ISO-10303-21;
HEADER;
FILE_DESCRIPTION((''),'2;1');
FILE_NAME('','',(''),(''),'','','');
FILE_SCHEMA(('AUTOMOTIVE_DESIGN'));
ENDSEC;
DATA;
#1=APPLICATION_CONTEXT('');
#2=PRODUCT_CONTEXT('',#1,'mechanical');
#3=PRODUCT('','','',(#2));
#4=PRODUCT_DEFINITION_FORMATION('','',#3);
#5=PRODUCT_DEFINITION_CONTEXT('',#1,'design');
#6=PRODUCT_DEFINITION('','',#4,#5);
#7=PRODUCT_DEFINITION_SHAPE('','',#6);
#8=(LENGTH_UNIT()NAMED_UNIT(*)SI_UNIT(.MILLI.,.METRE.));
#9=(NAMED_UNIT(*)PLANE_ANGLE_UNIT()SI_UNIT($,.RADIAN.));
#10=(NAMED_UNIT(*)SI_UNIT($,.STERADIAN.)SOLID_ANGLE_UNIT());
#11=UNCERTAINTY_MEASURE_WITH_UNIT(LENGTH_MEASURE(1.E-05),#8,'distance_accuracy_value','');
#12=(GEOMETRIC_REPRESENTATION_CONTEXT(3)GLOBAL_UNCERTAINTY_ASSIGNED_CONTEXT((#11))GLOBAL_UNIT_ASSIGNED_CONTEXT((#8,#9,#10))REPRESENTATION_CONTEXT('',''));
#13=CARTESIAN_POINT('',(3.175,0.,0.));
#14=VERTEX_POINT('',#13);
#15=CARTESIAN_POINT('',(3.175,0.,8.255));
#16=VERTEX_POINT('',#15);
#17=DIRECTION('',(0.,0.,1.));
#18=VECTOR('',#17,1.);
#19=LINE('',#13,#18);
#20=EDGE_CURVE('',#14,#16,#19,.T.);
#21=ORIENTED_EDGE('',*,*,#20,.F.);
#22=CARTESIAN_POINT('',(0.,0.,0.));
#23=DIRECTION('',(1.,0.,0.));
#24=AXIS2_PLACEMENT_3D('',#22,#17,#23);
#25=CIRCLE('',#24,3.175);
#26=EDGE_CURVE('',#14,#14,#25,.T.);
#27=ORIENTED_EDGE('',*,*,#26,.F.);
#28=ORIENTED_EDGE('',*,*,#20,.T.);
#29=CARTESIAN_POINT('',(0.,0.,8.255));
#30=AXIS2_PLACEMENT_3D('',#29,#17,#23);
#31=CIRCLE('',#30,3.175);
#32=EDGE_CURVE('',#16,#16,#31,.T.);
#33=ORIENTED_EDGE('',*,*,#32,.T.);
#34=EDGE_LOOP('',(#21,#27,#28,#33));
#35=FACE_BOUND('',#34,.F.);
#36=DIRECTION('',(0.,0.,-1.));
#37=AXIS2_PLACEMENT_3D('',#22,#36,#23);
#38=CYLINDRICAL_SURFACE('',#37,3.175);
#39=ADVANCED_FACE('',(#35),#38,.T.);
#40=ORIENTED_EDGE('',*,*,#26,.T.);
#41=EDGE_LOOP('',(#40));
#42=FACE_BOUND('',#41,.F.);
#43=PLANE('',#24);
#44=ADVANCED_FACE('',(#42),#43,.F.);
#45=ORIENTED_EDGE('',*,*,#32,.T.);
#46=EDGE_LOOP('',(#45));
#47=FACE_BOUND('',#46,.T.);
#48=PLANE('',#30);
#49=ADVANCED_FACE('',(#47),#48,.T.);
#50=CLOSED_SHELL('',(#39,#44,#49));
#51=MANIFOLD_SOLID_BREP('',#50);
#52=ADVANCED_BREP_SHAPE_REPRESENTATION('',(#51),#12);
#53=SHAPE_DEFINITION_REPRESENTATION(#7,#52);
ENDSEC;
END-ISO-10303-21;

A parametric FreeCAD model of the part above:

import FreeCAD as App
import Part
import Sketcher
Q = App.Units.Quantity

doc = App.newDocument("Part")
body = doc.addObject("PartDesign::Body", "Body")

sketch1 = doc.addObject("Sketcher::SketchObject", "Sketch")
body.addObject(sketch1)
sketch1.AttachmentSupport = (doc.XY_Plane, [""])
sketch1.MapMode = "FlatFace"
sketch1.addGeometry(Part.Circle(App.Vector(0, 0, 0), App.Vector(0, 0, 1), 3.2), False)
sketch1.addConstraint([
    Sketcher.Constraint("Coincident", 0, 3, -1, 1),
    Sketcher.Constraint("Diameter", 0, Q("0.25 in")),
])
pad1 = doc.addObject("PartDesign::Pad", "Pad")
body.addObject(pad1)
pad1.Profile = sketch1
pad1.Length = Q("0.325 in")

doc.recompute()
